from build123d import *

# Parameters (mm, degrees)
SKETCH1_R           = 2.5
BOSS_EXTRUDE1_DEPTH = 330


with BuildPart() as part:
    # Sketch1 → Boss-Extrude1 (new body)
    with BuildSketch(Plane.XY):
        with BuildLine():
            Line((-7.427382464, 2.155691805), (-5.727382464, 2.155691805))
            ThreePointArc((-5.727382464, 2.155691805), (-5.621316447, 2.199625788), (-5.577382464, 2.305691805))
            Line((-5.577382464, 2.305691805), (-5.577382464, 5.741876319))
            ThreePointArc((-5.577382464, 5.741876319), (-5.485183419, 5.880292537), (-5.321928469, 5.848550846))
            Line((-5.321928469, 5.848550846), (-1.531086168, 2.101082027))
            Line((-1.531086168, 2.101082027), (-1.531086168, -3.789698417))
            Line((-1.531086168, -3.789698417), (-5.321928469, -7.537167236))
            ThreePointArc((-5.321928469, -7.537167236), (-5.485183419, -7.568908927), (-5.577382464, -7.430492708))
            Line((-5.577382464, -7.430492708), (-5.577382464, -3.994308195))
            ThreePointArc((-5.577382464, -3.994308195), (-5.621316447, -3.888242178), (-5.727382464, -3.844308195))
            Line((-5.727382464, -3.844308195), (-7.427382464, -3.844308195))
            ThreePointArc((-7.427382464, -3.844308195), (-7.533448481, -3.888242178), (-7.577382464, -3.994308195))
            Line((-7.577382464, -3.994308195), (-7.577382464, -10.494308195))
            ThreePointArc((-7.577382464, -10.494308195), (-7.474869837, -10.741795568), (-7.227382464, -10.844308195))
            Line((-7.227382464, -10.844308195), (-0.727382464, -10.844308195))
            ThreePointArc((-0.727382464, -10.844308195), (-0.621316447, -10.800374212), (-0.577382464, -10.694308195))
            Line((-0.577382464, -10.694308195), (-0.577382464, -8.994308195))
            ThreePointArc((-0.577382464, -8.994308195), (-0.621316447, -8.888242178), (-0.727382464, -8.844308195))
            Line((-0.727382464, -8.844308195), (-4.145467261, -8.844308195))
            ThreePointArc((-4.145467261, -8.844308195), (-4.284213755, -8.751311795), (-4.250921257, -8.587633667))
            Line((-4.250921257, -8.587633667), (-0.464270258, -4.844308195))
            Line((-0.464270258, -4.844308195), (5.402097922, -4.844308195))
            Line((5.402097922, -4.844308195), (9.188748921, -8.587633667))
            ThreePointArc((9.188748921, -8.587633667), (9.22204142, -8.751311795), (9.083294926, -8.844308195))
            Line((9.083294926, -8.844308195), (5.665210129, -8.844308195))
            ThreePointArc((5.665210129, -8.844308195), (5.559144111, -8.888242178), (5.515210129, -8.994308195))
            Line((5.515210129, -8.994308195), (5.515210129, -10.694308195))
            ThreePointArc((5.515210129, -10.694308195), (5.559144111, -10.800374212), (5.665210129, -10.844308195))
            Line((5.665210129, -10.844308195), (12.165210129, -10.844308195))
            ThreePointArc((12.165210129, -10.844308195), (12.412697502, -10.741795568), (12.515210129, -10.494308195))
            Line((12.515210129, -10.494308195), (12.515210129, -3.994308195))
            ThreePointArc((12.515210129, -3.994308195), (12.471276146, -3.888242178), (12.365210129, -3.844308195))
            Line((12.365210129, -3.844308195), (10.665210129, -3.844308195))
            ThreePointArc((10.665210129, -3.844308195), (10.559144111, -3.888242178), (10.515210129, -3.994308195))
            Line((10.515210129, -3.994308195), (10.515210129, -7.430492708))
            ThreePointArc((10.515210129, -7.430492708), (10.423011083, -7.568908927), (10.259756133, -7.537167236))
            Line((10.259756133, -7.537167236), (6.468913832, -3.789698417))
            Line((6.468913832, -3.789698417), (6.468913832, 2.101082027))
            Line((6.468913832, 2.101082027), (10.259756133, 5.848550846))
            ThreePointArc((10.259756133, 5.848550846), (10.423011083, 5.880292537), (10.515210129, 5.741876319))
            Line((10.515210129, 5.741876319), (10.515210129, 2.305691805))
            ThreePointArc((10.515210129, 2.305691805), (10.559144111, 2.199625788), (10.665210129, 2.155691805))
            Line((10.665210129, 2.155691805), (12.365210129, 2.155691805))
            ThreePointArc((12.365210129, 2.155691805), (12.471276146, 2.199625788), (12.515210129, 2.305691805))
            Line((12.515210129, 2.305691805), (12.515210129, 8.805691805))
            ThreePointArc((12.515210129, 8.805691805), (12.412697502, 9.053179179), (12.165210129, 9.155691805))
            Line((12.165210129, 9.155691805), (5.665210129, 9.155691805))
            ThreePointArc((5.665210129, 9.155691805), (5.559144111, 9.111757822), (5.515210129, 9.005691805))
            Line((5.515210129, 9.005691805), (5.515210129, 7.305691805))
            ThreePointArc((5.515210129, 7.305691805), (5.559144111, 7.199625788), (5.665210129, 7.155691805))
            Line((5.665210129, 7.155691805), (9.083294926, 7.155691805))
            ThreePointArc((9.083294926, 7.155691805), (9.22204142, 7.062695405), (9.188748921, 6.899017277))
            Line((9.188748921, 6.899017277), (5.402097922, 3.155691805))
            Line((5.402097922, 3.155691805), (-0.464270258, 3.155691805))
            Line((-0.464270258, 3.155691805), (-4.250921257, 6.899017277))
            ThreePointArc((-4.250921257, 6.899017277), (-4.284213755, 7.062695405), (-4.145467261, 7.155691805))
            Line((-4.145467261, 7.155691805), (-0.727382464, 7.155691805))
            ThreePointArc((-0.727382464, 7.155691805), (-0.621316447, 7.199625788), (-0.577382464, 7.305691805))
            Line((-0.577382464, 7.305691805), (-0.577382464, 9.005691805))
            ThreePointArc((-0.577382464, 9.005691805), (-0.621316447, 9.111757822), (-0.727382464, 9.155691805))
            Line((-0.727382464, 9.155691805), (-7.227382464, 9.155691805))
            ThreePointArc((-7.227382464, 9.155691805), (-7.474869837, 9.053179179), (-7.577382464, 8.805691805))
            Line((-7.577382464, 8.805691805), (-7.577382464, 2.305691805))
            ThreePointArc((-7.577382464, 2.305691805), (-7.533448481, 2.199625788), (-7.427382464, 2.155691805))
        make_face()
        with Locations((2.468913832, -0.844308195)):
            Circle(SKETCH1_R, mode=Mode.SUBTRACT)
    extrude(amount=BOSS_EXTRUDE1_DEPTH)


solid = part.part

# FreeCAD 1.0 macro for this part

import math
import FreeCAD as App
import Part
import Sketcher
from FreeCAD import Vector
Q = App.Units.Quantity

doc = App.newDocument("Part")
body = doc.addObject("PartDesign::Body", "Body")

sketch1 = body.newObject("Sketcher::SketchObject", "Sketch")
sketch1.AttachmentSupport = (doc.getObject("XY_Plane"), [""])
sketch1.MapMode = "FlatFace"
sketch1.addGeometry([
    Part.LineSegment(Vector(-7.43, 2.16, 0), Vector(-5.73, 2.16, 0)),
    Part.ArcOfCircle(Part.Circle(Vector(-5.73, 2.31, 0), Vector(0, 0, 1), 0.15), math.radians(-90), math.radians(0)),
    Part.LineSegment(Vector(-5.58, 2.31, 0), Vector(-5.58, 5.74, 0)),
    Part.ArcOfCircle(Part.Circle(Vector(-5.43, 5.74, 0), Vector(0, 0, 1), 0.15), math.radians(45), math.radians(180)),
    Part.LineSegment(Vector(-5.32, 5.85, 0), Vector(-1.53, 2.1, 0)),
    Part.LineSegment(Vector(-1.53, 2.1, 0), Vector(-1.53, -3.79, 0)),
    Part.LineSegment(Vector(-1.53, -3.79, 0), Vector(-5.32, -7.54, 0)),
    Part.ArcOfCircle(Part.Circle(Vector(-5.43, -7.43, 0), Vector(0, 0, 1), 0.15), math.radians(180), math.radians(315)),
    Part.LineSegment(Vector(-5.58, -7.43, 0), Vector(-5.58, -3.99, 0)),
    Part.ArcOfCircle(Part.Circle(Vector(-5.73, -3.99, 0), Vector(0, 0, 1), 0.15), math.radians(0), math.radians(90)),
    Part.LineSegment(Vector(-5.73, -3.84, 0), Vector(-7.43, -3.84, 0)),
    Part.ArcOfCircle(Part.Circle(Vector(-7.43, -3.99, 0), Vector(0, 0, 1), 0.15), math.radians(90), math.radians(180)),
    Part.LineSegment(Vector(-7.58, -3.99, 0), Vector(-7.58, -10.49, 0)),
    Part.ArcOfCircle(Part.Circle(Vector(-7.23, -10.49, 0), Vector(0, 0, 1), 0.35), math.radians(-180), math.radians(-90)),
    Part.LineSegment(Vector(-7.23, -10.84, 0), Vector(-0.73, -10.84, 0)),
    Part.ArcOfCircle(Part.Circle(Vector(-0.73, -10.69, 0), Vector(0, 0, 1), 0.15), math.radians(-90), math.radians(0)),
    Part.LineSegment(Vector(-0.58, -10.69, 0), Vector(-0.58, -8.99, 0)),
    Part.ArcOfCircle(Part.Circle(Vector(-0.73, -8.99, 0), Vector(0, 0, 1), 0.15), math.radians(0), math.radians(90)),
    Part.LineSegment(Vector(-0.73, -8.84, 0), Vector(-4.15, -8.84, 0)),
    Part.ArcOfCircle(Part.Circle(Vector(-4.15, -8.69, 0), Vector(0, 0, 1), 0.15), math.radians(135), math.radians(270)),
    Part.LineSegment(Vector(-4.25, -8.59, 0), Vector(-0.46, -4.84, 0)),
    Part.LineSegment(Vector(-0.46, -4.84, 0), Vector(5.4, -4.84, 0)),
    Part.LineSegment(Vector(5.4, -4.84, 0), Vector(9.19, -8.59, 0)),
    Part.ArcOfCircle(Part.Circle(Vector(9.08, -8.69, 0), Vector(0, 0, 1), 0.15), math.radians(-90), math.radians(45)),
    Part.LineSegment(Vector(9.08, -8.84, 0), Vector(5.67, -8.84, 0)),
    Part.ArcOfCircle(Part.Circle(Vector(5.67, -8.99, 0), Vector(0, 0, 1), 0.15), math.radians(90), math.radians(180)),
    Part.LineSegment(Vector(5.52, -8.99, 0), Vector(5.52, -10.69, 0)),
    Part.ArcOfCircle(Part.Circle(Vector(5.67, -10.69, 0), Vector(0, 0, 1), 0.15), math.radians(180), math.radians(270)),
    Part.LineSegment(Vector(5.67, -10.84, 0), Vector(12.17, -10.84, 0)),
    Part.ArcOfCircle(Part.Circle(Vector(12.17, -10.49, 0), Vector(0, 0, 1), 0.35), math.radians(-90), math.radians(0)),
    Part.LineSegment(Vector(12.52, -10.49, 0), Vector(12.52, -3.99, 0)),
    Part.ArcOfCircle(Part.Circle(Vector(12.37, -3.99, 0), Vector(0, 0, 1), 0.15), math.radians(0), math.radians(90)),
    Part.LineSegment(Vector(12.37, -3.84, 0), Vector(10.67, -3.84, 0)),
    Part.ArcOfCircle(Part.Circle(Vector(10.67, -3.99, 0), Vector(0, 0, 1), 0.15), math.radians(90), math.radians(180)),
    Part.LineSegment(Vector(10.52, -3.99, 0), Vector(10.52, -7.43, 0)),
    Part.ArcOfCircle(Part.Circle(Vector(10.37, -7.43, 0), Vector(0, 0, 1), 0.15), math.radians(-135), math.radians(0)),
    Part.LineSegment(Vector(10.26, -7.54, 0), Vector(6.47, -3.79, 0)),
    Part.LineSegment(Vector(6.47, -3.79, 0), Vector(6.47, 2.1, 0)),
    Part.LineSegment(Vector(6.47, 2.1, 0), Vector(10.26, 5.85, 0)),
    Part.ArcOfCircle(Part.Circle(Vector(10.37, 5.74, 0), Vector(0, 0, 1), 0.15), math.radians(0), math.radians(135)),
    Part.LineSegment(Vector(10.52, 5.74, 0), Vector(10.52, 2.31, 0)),
    Part.ArcOfCircle(Part.Circle(Vector(10.67, 2.31, 0), Vector(0, 0, 1), 0.15), math.radians(180), math.radians(270)),
    Part.LineSegment(Vector(10.67, 2.16, 0), Vector(12.37, 2.16, 0)),
    Part.ArcOfCircle(Part.Circle(Vector(12.37, 2.31, 0), Vector(0, 0, 1), 0.15), math.radians(-90), math.radians(0)),
    Part.LineSegment(Vector(12.52, 2.31, 0), Vector(12.52, 8.81, 0)),
    Part.ArcOfCircle(Part.Circle(Vector(12.17, 8.81, 0), Vector(0, 0, 1), 0.35), math.radians(0), math.radians(90)),
    Part.LineSegment(Vector(12.17, 9.16, 0), Vector(5.67, 9.16, 0)),
    Part.ArcOfCircle(Part.Circle(Vector(5.67, 9.01, 0), Vector(0, 0, 1), 0.15), math.radians(90), math.radians(180)),
    Part.LineSegment(Vector(5.52, 9.01, 0), Vector(5.52, 7.31, 0)),
    Part.ArcOfCircle(Part.Circle(Vector(5.67, 7.31, 0), Vector(0, 0, 1), 0.15), math.radians(180), math.radians(270)),
    Part.LineSegment(Vector(5.67, 7.16, 0), Vector(9.08, 7.16, 0)),
    Part.ArcOfCircle(Part.Circle(Vector(9.08, 7.01, 0), Vector(0, 0, 1), 0.15), math.radians(-45), math.radians(90)),
    Part.LineSegment(Vector(9.19, 6.9, 0), Vector(5.4, 3.16, 0)),
    Part.LineSegment(Vector(5.4, 3.16, 0), Vector(-0.46, 3.16, 0)),
    Part.LineSegment(Vector(-0.46, 3.16, 0), Vector(-4.25, 6.9, 0)),
    Part.ArcOfCircle(Part.Circle(Vector(-4.15, 7.01, 0), Vector(0, 0, 1), 0.15), math.radians(90), math.radians(225)),
    Part.LineSegment(Vector(-4.15, 7.16, 0), Vector(-0.73, 7.16, 0)),
    Part.ArcOfCircle(Part.Circle(Vector(-0.73, 7.31, 0), Vector(0, 0, 1), 0.15), math.radians(-90), math.radians(0)),
    Part.LineSegment(Vector(-0.58, 7.31, 0), Vector(-0.58, 9.01, 0)),
    Part.ArcOfCircle(Part.Circle(Vector(-0.73, 9.01, 0), Vector(0, 0, 1), 0.15), math.radians(0), math.radians(90)),
    Part.LineSegment(Vector(-0.73, 9.16, 0), Vector(-7.23, 9.16, 0)),
    Part.ArcOfCircle(Part.Circle(Vector(-7.23, 8.81, 0), Vector(0, 0, 1), 0.35), math.radians(90), math.radians(180)),
    Part.LineSegment(Vector(-7.58, 8.81, 0), Vector(-7.58, 2.31, 0)),
    Part.ArcOfCircle(Part.Circle(Vector(-7.43, 2.31, 0), Vector(0, 0, 1), 0.15), math.radians(-180), math.radians(-90)),
    Part.Circle(Vector(2.47, -0.84, 0), Vector(0, 0, 1), 2.5),
], False)
sketch1.addConstraint([
    Sketcher.Constraint("Tangent", 0, 2, 1, 1),
    Sketcher.Constraint("Tangent", 1, 2, 2, 1),
    Sketcher.Constraint("Tangent", 2, 2, 3, 2),
    Sketcher.Constraint("Tangent", 3, 1, 4, 1),
    Sketcher.Constraint("Coincident", 4, 2, 5, 1),
    Sketcher.Constraint("Coincident", 5, 2, 6, 1),
    Sketcher.Constraint("Tangent", 6, 2, 7, 2),
    Sketcher.Constraint("Tangent", 7, 1, 8, 1),
    Sketcher.Constraint("Tangent", 8, 2, 9, 1),
    Sketcher.Constraint("Tangent", 9, 2, 10, 1),
    Sketcher.Constraint("Tangent", 10, 2, 11, 1),
    Sketcher.Constraint("Tangent", 11, 2, 12, 1),
    Sketcher.Constraint("Tangent", 12, 2, 13, 1),
    Sketcher.Constraint("Tangent", 13, 2, 14, 1),
    Sketcher.Constraint("Tangent", 14, 2, 15, 1),
    Sketcher.Constraint("Tangent", 15, 2, 16, 1),
    Sketcher.Constraint("Tangent", 16, 2, 17, 1),
    Sketcher.Constraint("Tangent", 17, 2, 18, 1),
    Sketcher.Constraint("Tangent", 18, 2, 19, 2),
    Sketcher.Constraint("Tangent", 19, 1, 20, 1),
    Sketcher.Constraint("Coincident", 20, 2, 21, 1),
    Sketcher.Constraint("Coincident", 21, 2, 22, 1),
    Sketcher.Constraint("Tangent", 22, 2, 23, 2),
    Sketcher.Constraint("Tangent", 23, 1, 24, 1),
    Sketcher.Constraint("Tangent", 24, 2, 25, 1),
    Sketcher.Constraint("Tangent", 25, 2, 26, 1),
    Sketcher.Constraint("Tangent", 26, 2, 27, 1),
    Sketcher.Constraint("Tangent", 27, 2, 28, 1),
    Sketcher.Constraint("Tangent", 28, 2, 29, 1),
    Sketcher.Constraint("Tangent", 29, 2, 30, 1),
    Sketcher.Constraint("Tangent", 30, 2, 31, 1),
    Sketcher.Constraint("Tangent", 31, 2, 32, 1),
    Sketcher.Constraint("Tangent", 32, 2, 33, 1),
    Sketcher.Constraint("Tangent", 33, 2, 34, 1),
    Sketcher.Constraint("Tangent", 34, 2, 35, 2),
    Sketcher.Constraint("Tangent", 35, 1, 36, 1),
    Sketcher.Constraint("Coincident", 36, 2, 37, 1),
    Sketcher.Constraint("Coincident", 37, 2, 38, 1),
    Sketcher.Constraint("Tangent", 38, 2, 39, 2),
    Sketcher.Constraint("Tangent", 39, 1, 40, 1),
    Sketcher.Constraint("Tangent", 40, 2, 41, 1),
    Sketcher.Constraint("Tangent", 41, 2, 42, 1),
    Sketcher.Constraint("Tangent", 42, 2, 43, 1),
    Sketcher.Constraint("Tangent", 43, 2, 44, 1),
    Sketcher.Constraint("Tangent", 44, 2, 45, 1),
    Sketcher.Constraint("Tangent", 45, 2, 46, 1),
    Sketcher.Constraint("Tangent", 46, 2, 47, 1),
    Sketcher.Constraint("Tangent", 47, 2, 48, 1),
    Sketcher.Constraint("Tangent", 48, 2, 49, 1),
    Sketcher.Constraint("Tangent", 49, 2, 50, 1),
    Sketcher.Constraint("Tangent", 50, 2, 51, 2),
    Sketcher.Constraint("Tangent", 51, 1, 52, 1),
    Sketcher.Constraint("Coincident", 52, 2, 53, 1),
    Sketcher.Constraint("Coincident", 53, 2, 54, 1),
    Sketcher.Constraint("Tangent", 54, 2, 55, 2),
    Sketcher.Constraint("Tangent", 55, 1, 56, 1),
    Sketcher.Constraint("Tangent", 56, 2, 57, 1),
    Sketcher.Constraint("Tangent", 57, 2, 58, 1),
    Sketcher.Constraint("Tangent", 58, 2, 59, 1),
    Sketcher.Constraint("Tangent", 59, 2, 60, 1),
    Sketcher.Constraint("Tangent", 60, 2, 61, 1),
    Sketcher.Constraint("Tangent", 61, 2, 62, 1),
    Sketcher.Constraint("Tangent", 62, 2, 63, 1),
    Sketcher.Constraint("Tangent", 63, 2, 0, 1),
    Sketcher.Constraint("Horizontal", 0),
    Sketcher.Constraint("Vertical", 2),
    Sketcher.Constraint("Vertical", 5),
    Sketcher.Constraint("Vertical", 8),
    Sketcher.Constraint("Horizontal", 10),
    Sketcher.Constraint("Vertical", 12),
    Sketcher.Constraint("Horizontal", 14),
    Sketcher.Constraint("Vertical", 16),
    Sketcher.Constraint("Horizontal", 18),
    Sketcher.Constraint("Horizontal", 21),
    Sketcher.Constraint("Horizontal", 24),
    Sketcher.Constraint("Vertical", 26),
    Sketcher.Constraint("Horizontal", 28),
    Sketcher.Constraint("Vertical", 30),
    Sketcher.Constraint("Horizontal", 32),
    Sketcher.Constraint("Vertical", 34),
    Sketcher.Constraint("Vertical", 37),
    Sketcher.Constraint("Vertical", 40),
    Sketcher.Constraint("Horizontal", 42),
    Sketcher.Constraint("Vertical", 44),
    Sketcher.Constraint("Horizontal", 46),
    Sketcher.Constraint("Vertical", 48),
    Sketcher.Constraint("Horizontal", 50),
    Sketcher.Constraint("Horizontal", 53),
    Sketcher.Constraint("Horizontal", 56),
    Sketcher.Constraint("Vertical", 58),
    Sketcher.Constraint("Horizontal", 60),
    Sketcher.Constraint("Vertical", 62),
    Sketcher.Constraint("Equal", 1, 3),
    Sketcher.Constraint("Equal", 3, 7),
    Sketcher.Constraint("Equal", 7, 9),
    Sketcher.Constraint("Equal", 9, 11),
    Sketcher.Constraint("Equal", 11, 15),
    Sketcher.Constraint("Equal", 15, 17),
    Sketcher.Constraint("Equal", 17, 19),
    Sketcher.Constraint("Equal", 19, 23),
    Sketcher.Constraint("Equal", 23, 25),
    Sketcher.Constraint("Equal", 25, 27),
    Sketcher.Constraint("Equal", 13, 29),
    Sketcher.Constraint("Equal", 27, 31),
    Sketcher.Constraint("Equal", 31, 33),
    Sketcher.Constraint("Equal", 33, 35),
    Sketcher.Constraint("Equal", 35, 39),
    Sketcher.Constraint("Equal", 39, 41),
    Sketcher.Constraint("Equal", 41, 43),
    Sketcher.Constraint("Equal", 29, 45),
    Sketcher.Constraint("Equal", 43, 47),
    Sketcher.Constraint("Equal", 47, 49),
    Sketcher.Constraint("Equal", 49, 51),
    Sketcher.Constraint("Equal", 51, 55),
    Sketcher.Constraint("Equal", 55, 57),
    Sketcher.Constraint("Equal", 57, 59),
    Sketcher.Constraint("Equal", 45, 61),
    Sketcher.Constraint("Equal", 59, 63),
    Sketcher.Constraint("Parallel", 6, 20),
    Sketcher.Constraint("Parallel", 4, 22),
    Sketcher.Constraint("Parallel", 22, 36),
    Sketcher.Constraint("Parallel", 20, 38),
    Sketcher.Constraint("Parallel", 38, 52),
    Sketcher.Constraint("Parallel", 36, 54),
    Sketcher.Constraint("Horizontal", 19, 3, 23, 3),
    Sketcher.Constraint("Horizontal", 15, 3, 27, 3),
    Sketcher.Constraint("Horizontal", 11, 3, 31, 3),
    Sketcher.Constraint("Horizontal", 7, 3, 35, 3),
    Sketcher.Constraint("Horizontal", 3, 3, 39, 3),
    Sketcher.Constraint("Horizontal", 1, 3, 41, 3),
    Sketcher.Constraint("Horizontal", 51, 3, 55, 3),
    Sketcher.Constraint("Horizontal", 47, 3, 59, 3),
    Sketcher.Constraint("Horizontal", 19, 1, 22, 2),
    Sketcher.Constraint("Horizontal", 5, 2, 36, 2),
    Sketcher.Constraint("Horizontal", 4, 2, 37, 2),
    Sketcher.Constraint("Vertical", 3, 3, 7, 3),
    Sketcher.Constraint("Vertical", 31, 3, 43, 3),
    Sketcher.Constraint("Vertical", 27, 3, 47, 3),
    Sketcher.Constraint("Vertical", 23, 3, 51, 3),
    Sketcher.Constraint("Vertical", 19, 3, 55, 3),
    Sketcher.Constraint("Vertical", 17, 3, 57, 3),
    Sketcher.Constraint("Vertical", 13, 3, 61, 3),
    Sketcher.Constraint("Vertical", 21, 2, 52, 2),
    Sketcher.Constraint("Equal", 18, 24),
    Sketcher.Constraint("Equal", 14, 28),
    Sketcher.Constraint("Equal", 10, 32),
    Sketcher.Constraint("Equal", 2, 8),
    Sketcher.Constraint("Equal", 60, 12),
    Sketcher.Constraint("Equal", 42, 16),
    Sketcher.Constraint("Equal", 30, 44),
    Sketcher.Constraint("Equal", 26, 48),
    Sketcher.Constraint("Diameter", 64, Q("5 mm")),
    Sketcher.Constraint("Radius", 1, Q("0.15 mm")),
    Sketcher.Constraint("Radius", 13, Q("0.35 mm")),
    Sketcher.Constraint("DistanceX", 0, 1, 0, 2, Q("1.7 mm")),
    Sketcher.Constraint("DistanceX", 14, 1, 14, 2, Q("6.5 mm")),
    Sketcher.Constraint("DistanceX", 21, 1, 21, 2, Q("5.866368 mm")),
    Sketcher.Constraint("DistanceY", 5, 2, 5, 1, Q("5.89078 mm")),
    Sketcher.Constraint("DistanceY", 5, 2, -1, 1, Q("3.789698 mm")),
    Sketcher.Constraint("Distance", 4, Q("5.330479 mm")),
    Sketcher.Constraint("DistanceX", 18, 2, 18, 1, Q("3.418085 mm")),
    Sketcher.Constraint("DistanceY", 2, 1, 2, 2, Q("3.436185 mm")),
    Sketcher.Constraint("DistanceY", -1, 1, 1, 3, Q("2.305692 mm")),
    Sketcher.Constraint("DistanceX", -1, 1, 25, 3, Q("5.66521 mm")),
    Sketcher.Constraint("DistanceY", 64, 3, -1, 1, Q("0.844308 mm")),
    Sketcher.Constraint("DistanceX", 3, 1, -1, 1, Q("5.321928 mm")),
    Sketcher.Constraint("DistanceX", -1, 1, 64, 3, Q("2.468914 mm")),
])
pad1 = body.newObject("PartDesign::Pad", "Pad")
pad1.Profile = sketch1
pad1.Length = 330

doc.recompute()
